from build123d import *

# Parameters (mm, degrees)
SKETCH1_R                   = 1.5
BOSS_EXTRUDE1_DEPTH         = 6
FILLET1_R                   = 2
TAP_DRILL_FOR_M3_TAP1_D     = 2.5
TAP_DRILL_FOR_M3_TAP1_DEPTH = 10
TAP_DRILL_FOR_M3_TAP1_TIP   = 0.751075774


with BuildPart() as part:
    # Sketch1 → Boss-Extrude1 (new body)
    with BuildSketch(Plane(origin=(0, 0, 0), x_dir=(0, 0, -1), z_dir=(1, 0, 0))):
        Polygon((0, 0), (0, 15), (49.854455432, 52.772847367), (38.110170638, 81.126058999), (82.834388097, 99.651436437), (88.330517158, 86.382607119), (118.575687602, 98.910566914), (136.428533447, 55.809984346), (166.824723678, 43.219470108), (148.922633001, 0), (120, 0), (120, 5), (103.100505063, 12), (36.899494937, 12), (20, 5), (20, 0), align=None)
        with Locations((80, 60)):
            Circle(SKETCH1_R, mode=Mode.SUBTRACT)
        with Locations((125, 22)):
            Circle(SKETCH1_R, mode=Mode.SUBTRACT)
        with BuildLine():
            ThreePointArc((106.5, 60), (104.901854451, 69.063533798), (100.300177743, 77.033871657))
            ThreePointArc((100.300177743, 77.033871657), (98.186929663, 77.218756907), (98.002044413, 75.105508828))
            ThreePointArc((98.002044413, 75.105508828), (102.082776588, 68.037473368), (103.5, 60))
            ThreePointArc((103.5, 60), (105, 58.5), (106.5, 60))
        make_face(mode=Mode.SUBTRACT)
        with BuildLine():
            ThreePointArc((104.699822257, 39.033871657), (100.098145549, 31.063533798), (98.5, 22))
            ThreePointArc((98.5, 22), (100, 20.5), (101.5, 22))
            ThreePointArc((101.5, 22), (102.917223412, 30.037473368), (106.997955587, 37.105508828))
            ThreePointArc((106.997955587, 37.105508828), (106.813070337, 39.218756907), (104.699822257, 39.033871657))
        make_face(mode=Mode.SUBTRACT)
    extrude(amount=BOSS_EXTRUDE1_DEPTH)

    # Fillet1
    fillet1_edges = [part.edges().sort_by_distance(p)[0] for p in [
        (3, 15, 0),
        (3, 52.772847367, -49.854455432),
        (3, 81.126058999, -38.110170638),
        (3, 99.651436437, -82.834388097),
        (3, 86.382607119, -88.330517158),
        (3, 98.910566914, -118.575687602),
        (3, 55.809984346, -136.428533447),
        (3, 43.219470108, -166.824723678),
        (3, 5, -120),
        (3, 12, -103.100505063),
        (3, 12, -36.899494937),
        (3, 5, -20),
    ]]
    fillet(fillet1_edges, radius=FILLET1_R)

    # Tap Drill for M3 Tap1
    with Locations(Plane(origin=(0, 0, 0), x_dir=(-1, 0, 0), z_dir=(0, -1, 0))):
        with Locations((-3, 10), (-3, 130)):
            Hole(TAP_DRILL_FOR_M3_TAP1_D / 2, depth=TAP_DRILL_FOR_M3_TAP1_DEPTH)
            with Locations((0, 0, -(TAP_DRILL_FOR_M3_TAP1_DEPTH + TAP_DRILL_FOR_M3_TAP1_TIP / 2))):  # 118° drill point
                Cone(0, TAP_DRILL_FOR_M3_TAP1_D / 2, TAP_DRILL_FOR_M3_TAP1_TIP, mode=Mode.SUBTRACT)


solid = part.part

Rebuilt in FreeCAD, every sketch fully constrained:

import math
import FreeCAD as App
import Part
import Sketcher

V = App.Vector
Q = App.Units.Quantity


def edges_at(feature, points):
    """Names of the edges that pass closest to the given points."""
    edges = feature.Shape.Edges
    near = lambda p: min(range(len(edges)), key=lambda i: edges[i].distToShape(Part.Vertex(*p))[0])
    return sorted({f"Edge{near(p) + 1}" for p in points})

doc = App.newDocument("Part")
params = doc.addObject("Spreadsheet::Sheet", "Params")
for row, (alias, value) in enumerate([
    ("sketch1_diameter", "3 mm"),
    ("sketch1_radius", "23.5 mm"),
    ("sketch1_width", "15 mm"),
    ("sketch1_width2", "5 mm"),
    ("sketch1_height", "20 mm"),
    ("pad1_length", "6 mm"),
    ("fillet_radius", "2 mm"),
    ("sketch2_diameter", "2.5 mm"),
    ("hole_diameter", "2.5 mm"),
    ("hole_depth", "10 mm"),
], start=1):
    params.set(f"A{row}", alias)
    params.set(f"B{row}", "=" + value)
    params.setAlias(f"B{row}", alias)

body = doc.addObject("PartDesign::Body", "Body")

# Sketch on YZ plane
sketch1 = body.newObject("Sketcher::SketchObject", "Sketch")
sketch1.AttachmentSupport = (doc.getObject("YZ_Plane"), [""])
sketch1.MapMode = "FlatFace"
sketch1.addGeometry([
    Part.LineSegment(V(15, 0, 0), V(0, 0, 0)),  # 0
    Part.LineSegment(V(0, 0, 0), V(0, -20, 0)),  # 1
    Part.LineSegment(V(0, -20, 0), V(5, -20, 0)),  # 2
    Part.LineSegment(V(5, -20, 0), V(12, -36.9, 0)),  # 3
    Part.LineSegment(V(12, -36.9, 0), V(12, -103.1, 0)),  # 4
    Part.LineSegment(V(12, -103.1, 0), V(5, -120, 0)),  # 5
    Part.LineSegment(V(5, -120, 0), V(0, -120, 0)),  # 6
    Part.LineSegment(V(0, -120, 0), V(0, -148.9, 0)),  # 7
    Part.LineSegment(V(0, -148.9, 0), V(43.2, -166.8, 0)),  # 8
    Part.LineSegment(V(43.2, -166.8, 0), V(55.8, -136.4, 0)),  # 9
    Part.LineSegment(V(55.8, -136.4, 0), V(98.9, -118.6, 0)),  # 10
    Part.LineSegment(V(98.9, -118.6, 0), V(86.4, -88.3, 0)),  # 11
    Part.LineSegment(V(86.4, -88.3, 0), V(99.7, -82.8, 0)),  # 12
    Part.LineSegment(V(99.7, -82.8, 0), V(81.1, -38.1, 0)),  # 13
    Part.LineSegment(V(81.1, -38.1, 0), V(52.8, -49.9, 0)),  # 14
    Part.LineSegment(V(52.8, -49.9, 0), V(15, 0, 0)),  # 15
    Part.Circle(V(22, -125, 0), V(0, 0, 1), 1.5),  # 16
    Part.ArcOfCircle(Part.Circle(V(38.1, -105.8, 0), V(0, 0, 1), 1.5), math.radians(-130), math.radians(50)),  # 17
    Part.ArcOfCircle(Part.Circle(V(22, -125, 0), V(0, 0, 1), 23.5), math.radians(50), math.radians(90)),  # 18
    Part.ArcOfCircle(Part.Circle(V(22, -100, 0), V(0, 0, 1), 1.5), math.radians(90), math.radians(270)),  # 19
    Part.ArcOfCircle(Part.Circle(V(22, -125, 0), V(0, 0, 1), 26.5), math.radians(50), math.radians(90)),  # 20
    Part.Circle(V(60, -80, 0), V(0, 0, 1), 1.5),  # 21
    Part.ArcOfCircle(Part.Circle(V(60, -105, 0), V(0, 0, 1), 1.5), math.radians(90), math.radians(270)),  # 22
    Part.ArcOfCircle(Part.Circle(V(60, -80, 0), V(0, 0, 1), 23.5), math.radians(-90), math.radians(-50)),  # 23
    Part.ArcOfCircle(Part.Circle(V(76.1, -99.2, 0), V(0, 0, 1), 1.5), math.radians(-50), math.radians(130)),  # 24
    Part.ArcOfCircle(Part.Circle(V(60, -80, 0), V(0, 0, 1), 26.5), math.radians(-90), math.radians(-50)),  # 25
], False)
sketch1.addConstraint([
    Sketcher.Constraint("Coincident", 0, 2, 1, 1),
    Sketcher.Constraint("Coincident", 1, 2, 2, 1),
    Sketcher.Constraint("Coincident", 2, 2, 3, 1),
    Sketcher.Constraint("Coincident", 3, 2, 4, 1),
    Sketcher.Constraint("Coincident", 4, 2, 5, 1),
    Sketcher.Constraint("Coincident", 5, 2, 6, 1),
    Sketcher.Constraint("Coincident", 6, 2, 7, 1),
    Sketcher.Constraint("Coincident", 7, 2, 8, 1),
    Sketcher.Constraint("Coincident", 8, 2, 9, 1),
    Sketcher.Constraint("Coincident", 9, 2, 10, 1),
    Sketcher.Constraint("Coincident", 10, 2, 11, 1),
    Sketcher.Constraint("Coincident", 11, 2, 12, 1),
    Sketcher.Constraint("Coincident", 12, 2, 13, 1),
    Sketcher.Constraint("Coincident", 13, 2, 14, 1),
    Sketcher.Constraint("Coincident", 14, 2, 15, 1),
    Sketcher.Constraint("Coincident", 15, 2, 0, 1),
    Sketcher.Constraint("Tangent", 17, 1, 18, 1),
    Sketcher.Constraint("Tangent", 18, 2, 19, 2),
    Sketcher.Constraint("Tangent", 19, 1, 20, 2),
    Sketcher.Constraint("Tangent", 20, 1, 17, 2),
    Sketcher.Constraint("Tangent", 22, 1, 23, 1),
    Sketcher.Constraint("Tangent", 23, 2, 24, 2),
    Sketcher.Constraint("Tangent", 24, 1, 25, 2),
    Sketcher.Constraint("Tangent", 25, 1, 22, 2),
    Sketcher.Constraint("Horizontal", 0),
    Sketcher.Constraint("Vertical", 1),
    Sketcher.Constraint("Horizontal", 2),
    Sketcher.Constraint("Vertical", 4),
    Sketcher.Constraint("Horizontal", 6),
    Sketcher.Constraint("Vertical", 7),
    Sketcher.Constraint("Coincident", 0, 2, -1, 1),
    Sketcher.Constraint("Coincident", 18, 3, 16, 3),
    Sketcher.Constraint("Coincident", 20, 3, 16, 3),
    Sketcher.Constraint("Coincident", 23, 3, 21, 3),
    Sketcher.Constraint("Coincident", 25, 3, 21, 3),
    Sketcher.Constraint("Equal", 16, 17),
    Sketcher.Constraint("Equal", 19, 21),
    Sketcher.Constraint("Equal", 21, 22),
    Sketcher.Constraint("Equal", 18, 23),
    Sketcher.Constraint("PointOnObject", 6, 2, -2),
    Sketcher.Constraint("Perpendicular", 5, 8),
    Sketcher.Constraint("Perpendicular", 8, 9),
    Sketcher.Constraint("Perpendicular", 3, 10),
    Sketcher.Constraint("Perpendicular", 10, 11),
    Sketcher.Constraint("Perpendicular", 11, 12),
    Sketcher.Constraint("Perpendicular", 12, 13),
    Sketcher.Constraint("Perpendicular", 13, 14),
    Sketcher.Constraint("Vertical", 18, 3, 19, 3),
    Sketcher.Constraint("Vertical", 21, 3, 22, 3),
    Sketcher.Constraint("Vertical", 2, 2, 5, 2),
    Sketcher.Constraint("Equal", 3, 5),
    Sketcher.Constraint("Diameter", 16, 3.0),
    Sketcher.Constraint("Radius", 18, 23.5),
    Sketcher.Constraint("DistanceX", 0, 2, 0, 1, 15.0),
    Sketcher.Constraint("DistanceX", 2, 1, 2, 2, 5.0),
    Sketcher.Constraint("DistanceY", 1, 2, 1, 1, 20.0),
    Sketcher.Constraint("DistanceX", -1, 1, 16, 3, 22.0),
    Sketcher.Constraint("DistanceY", 16, 3, -1, 1, 125.0),
    Sketcher.Constraint("DistanceX", -1, 1, 21, 3, 60.0),
    Sketcher.Constraint("DistanceY", 21, 3, -1, 1, 80.0),
    Sketcher.Constraint("DistanceX", -1, 1, 3, 2, 12.0),
    Sketcher.Constraint("DistanceY", 5, 2, -1, 1, 120.0),
    Sketcher.Constraint("Angle", 3, Q("-67.5 deg")),
    Sketcher.Constraint("DistanceX", 17, 3, 24, 3, 38.0),
    Sketcher.Constraint("Distance", 9, 32.900599),
    Sketcher.Constraint("DistanceY", 10, 2, 12, 2, 35.7413),
    Sketcher.Constraint("DistanceX", 23, 2, 11, 2, 11.277098),
    Sketcher.Constraint("Distance", 15, 62.548019),
    Sketcher.Constraint("DistanceY", 7, 2, 7, 1, 28.922633),
    Sketcher.Constraint("DistanceX", -1, 1, 17, 3, 38.06969),
    Sketcher.Constraint("DistanceX", -1, 1, 8, 2, 43.21947),
    Sketcher.Constraint("DistanceY", 12, 2, -1, 1, 82.834388),
    Sketcher.Constraint("DistanceX", -1, 1, 13, 2, 81.126059),
])
sketch1.setExpression("Constraints[51]", "Params.sketch1_diameter")
sketch1.setExpression("Constraints[52]", "Params.sketch1_radius")
sketch1.setExpression("Constraints[53]", "Params.sketch1_width")
sketch1.setExpression("Constraints[54]", "Params.sketch1_width2")
sketch1.setExpression("Constraints[55]", "Params.sketch1_height")
pad1 = body.newObject("PartDesign::Pad", "Pad")
pad1.Profile = sketch1
pad1.setExpression("Length", "Params.pad1_length")
doc.recompute()

fillet = body.newObject("PartDesign::Fillet", "Fillet")
fillet.Base = (pad1, edges_at(pad1, [
    (3, 15, 0),
    (3, 52.773, -49.854),
    (3, 81.126, -38.11),
    (3, 99.651, -82.834),
    (3, 86.383, -88.331),
    (3, 98.911, -118.576),
    (3, 55.81, -136.429),
    (3, 43.219, -166.825),
    (3, 5, -120),
    (3, 12, -103.101),
    (3, 12, -36.899),
    (3, 5, -20),
]))
fillet.setExpression("Radius", "Params.fillet_radius")

# Sketch on XZ plane
sketch2 = body.newObject("Sketcher::SketchObject", "Sketch001")
sketch2.AttachmentSupport = (doc.getObject("XZ_Plane"), [""])
sketch2.MapMode = "FlatFace"
sketch2.addGeometry([
    Part.Circle(V(3, -10, 0), V(0, 0, 1), 1.2),
    Part.Circle(V(3, -130, 0), V(0, 0, 1), 1.2),
], False)
sketch2.addConstraint([
    Sketcher.Constraint("Equal", 0, 1),
    Sketcher.Constraint("Vertical", 0, 3, 1, 3),
    Sketcher.Constraint("Diameter", 0, 2.5),
    Sketcher.Constraint("DistanceX", -1, 1, 0, 3, 3.0),
    Sketcher.Constraint("DistanceY", 0, 3, -1, 1, 10.0),
    Sketcher.Constraint("DistanceY", 1, 3, -1, 1, 130.0),
])
sketch2.setExpression("Constraints[2]", "Params.sketch2_diameter")
doc.recompute()
hole = body.newObject("PartDesign::Hole", "Hole")
hole.Profile = sketch2
hole.ThreadType = "None"
hole.setExpression("Diameter", "Params.hole_diameter")
hole.DepthType = "Dimension"
hole.setExpression("Depth", "Params.hole_depth")
hole.DrillPoint = "Angled"
hole.DrillPointAngle = 118

doc.recompute()
